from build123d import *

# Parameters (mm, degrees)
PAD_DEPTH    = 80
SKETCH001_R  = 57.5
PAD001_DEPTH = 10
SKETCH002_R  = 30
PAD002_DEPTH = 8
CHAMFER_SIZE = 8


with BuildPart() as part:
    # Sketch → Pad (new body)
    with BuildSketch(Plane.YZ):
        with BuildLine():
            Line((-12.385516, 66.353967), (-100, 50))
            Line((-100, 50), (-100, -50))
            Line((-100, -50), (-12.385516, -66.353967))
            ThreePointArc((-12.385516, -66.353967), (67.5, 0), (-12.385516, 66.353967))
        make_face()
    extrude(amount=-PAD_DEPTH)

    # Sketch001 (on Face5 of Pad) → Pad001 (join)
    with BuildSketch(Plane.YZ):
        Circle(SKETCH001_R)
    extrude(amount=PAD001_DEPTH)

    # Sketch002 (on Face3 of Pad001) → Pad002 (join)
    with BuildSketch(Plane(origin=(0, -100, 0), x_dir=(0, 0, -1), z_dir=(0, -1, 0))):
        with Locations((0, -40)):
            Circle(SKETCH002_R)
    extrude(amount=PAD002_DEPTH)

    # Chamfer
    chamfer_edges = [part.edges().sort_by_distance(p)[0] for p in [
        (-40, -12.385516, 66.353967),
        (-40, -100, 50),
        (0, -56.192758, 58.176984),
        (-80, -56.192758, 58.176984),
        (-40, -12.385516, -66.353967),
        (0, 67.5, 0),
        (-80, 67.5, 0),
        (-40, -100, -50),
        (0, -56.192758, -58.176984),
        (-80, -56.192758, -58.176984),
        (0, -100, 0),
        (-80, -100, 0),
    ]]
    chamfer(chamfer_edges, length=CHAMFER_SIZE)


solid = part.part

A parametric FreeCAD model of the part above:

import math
import FreeCAD as App
import Part
import Sketcher

V = App.Vector
Q = App.Units.Quantity


def edges_at(feature, points):
    """Names of the edges that pass closest to the given points."""
    edges = feature.Shape.Edges
    near = lambda p: min(range(len(edges)), key=lambda i: edges[i].distToShape(Part.Vertex(*p))[0])
    return sorted({f"Edge{near(p) + 1}" for p in points})

doc = App.newDocument("Part")
body = doc.addObject("PartDesign::Body", "Body")

# Sketch on YZ plane
sketch1 = body.newObject("Sketcher::SketchObject", "Sketch")
sketch1.AttachmentSupport = (doc.getObject("YZ_Plane"), [""])
sketch1.MapMode = "FlatFace"
sketch1.addGeometry([
    Part.LineSegment(V(-12, 66, 0), V(-100, 50, 0)),
    Part.LineSegment(V(-100, 50, 0), V(-100, -50, 0)),
    Part.LineSegment(V(-100, -50, 0), V(-12, -66, 0)),
    Part.ArcOfCircle(Part.Circle(V(0, 0, 0), V(0, 0, 1), 67), math.radians(-101), math.radians(101)),
], False)
sketch1.addConstraint([
    Sketcher.Constraint("Coincident", 0, 2, 1, 1),
    Sketcher.Constraint("Coincident", 1, 2, 2, 1),
    Sketcher.Constraint("Tangent", 2, 2, 3, 1),
    Sketcher.Constraint("Tangent", 3, 2, 0, 1),
    Sketcher.Constraint("Vertical", 1),
    Sketcher.Constraint("Coincident", 3, 3, -1, 1),
    Sketcher.Constraint("Vertical", 2, 2, 3, 2),
    Sketcher.Constraint("Radius", 3, Q("67.5 mm")),
    Sketcher.Constraint("DistanceY", 1, 2, 1, 1, Q("100 mm")),
    Sketcher.Constraint("DistanceX", 0, 2, -1, 1, Q("100 mm")),
])
pad1 = body.newObject("PartDesign::Pad", "Pad")
pad1.Profile = sketch1
pad1.Length = 80
pad1.Reversed = True

# Sketch on YZ plane
sketch2 = body.newObject("Sketcher::SketchObject", "Sketch001")
sketch2.AttachmentSupport = (doc.getObject("YZ_Plane"), [""])
sketch2.MapMode = "FlatFace"
sketch2.addGeometry(Part.Circle(V(0, 0, 0), V(0, 0, 1), 58), False)
sketch2.addConstraint([
    Sketcher.Constraint("Coincident", 0, 3, -1, 1),
    Sketcher.Constraint("Diameter", 0, Q("115 mm")),
])
pad2 = body.newObject("PartDesign::Pad", "Pad001")
pad2.Profile = sketch2
pad2.Length = 10

# Sketch on XZ plane
sketch3 = body.newObject("Sketcher::SketchObject", "Sketch002")
sketch3.AttachmentSupport = (doc.getObject("XZ_Plane"), [""])
sketch3.MapMode = "FlatFace"
sketch3.AttachmentOffset = App.Placement(V(0, 0, 100), App.Rotation())
sketch3.addGeometry(Part.Circle(V(-40, 0, 0), V(0, 0, 1), 30), False)
sketch3.addConstraint([
    Sketcher.Constraint("PointOnObject", 0, 3, -1),
    Sketcher.Constraint("Diameter", 0, Q("60 mm")),
    Sketcher.Constraint("DistanceX", 0, 3, -1, 1, Q("40 mm")),
])
pad3 = body.newObject("PartDesign::Pad", "Pad002")
pad3.Profile = sketch3
pad3.Length = 8
doc.recompute()

chamfer = body.newObject("PartDesign::Chamfer", "Chamfer")
chamfer.Base = (pad3, edges_at(pad3, [
    (-40, -12.386, 66.354),
    (-40, -100, 50),
    (0, -56.193, 58.177),
    (-80, -56.193, 58.177),
    (-40, -12.386, -66.354),
    (0, 67.5, 0),
    (-80, 67.5, 0),
    (-40, -100, -50),
    (0, -56.193, -58.177),
    (-80, -56.193, -58.177),
    (0, -100, 0),
    (-80, -100, 0),
]))
chamfer.Size = 8

doc.recompute()
